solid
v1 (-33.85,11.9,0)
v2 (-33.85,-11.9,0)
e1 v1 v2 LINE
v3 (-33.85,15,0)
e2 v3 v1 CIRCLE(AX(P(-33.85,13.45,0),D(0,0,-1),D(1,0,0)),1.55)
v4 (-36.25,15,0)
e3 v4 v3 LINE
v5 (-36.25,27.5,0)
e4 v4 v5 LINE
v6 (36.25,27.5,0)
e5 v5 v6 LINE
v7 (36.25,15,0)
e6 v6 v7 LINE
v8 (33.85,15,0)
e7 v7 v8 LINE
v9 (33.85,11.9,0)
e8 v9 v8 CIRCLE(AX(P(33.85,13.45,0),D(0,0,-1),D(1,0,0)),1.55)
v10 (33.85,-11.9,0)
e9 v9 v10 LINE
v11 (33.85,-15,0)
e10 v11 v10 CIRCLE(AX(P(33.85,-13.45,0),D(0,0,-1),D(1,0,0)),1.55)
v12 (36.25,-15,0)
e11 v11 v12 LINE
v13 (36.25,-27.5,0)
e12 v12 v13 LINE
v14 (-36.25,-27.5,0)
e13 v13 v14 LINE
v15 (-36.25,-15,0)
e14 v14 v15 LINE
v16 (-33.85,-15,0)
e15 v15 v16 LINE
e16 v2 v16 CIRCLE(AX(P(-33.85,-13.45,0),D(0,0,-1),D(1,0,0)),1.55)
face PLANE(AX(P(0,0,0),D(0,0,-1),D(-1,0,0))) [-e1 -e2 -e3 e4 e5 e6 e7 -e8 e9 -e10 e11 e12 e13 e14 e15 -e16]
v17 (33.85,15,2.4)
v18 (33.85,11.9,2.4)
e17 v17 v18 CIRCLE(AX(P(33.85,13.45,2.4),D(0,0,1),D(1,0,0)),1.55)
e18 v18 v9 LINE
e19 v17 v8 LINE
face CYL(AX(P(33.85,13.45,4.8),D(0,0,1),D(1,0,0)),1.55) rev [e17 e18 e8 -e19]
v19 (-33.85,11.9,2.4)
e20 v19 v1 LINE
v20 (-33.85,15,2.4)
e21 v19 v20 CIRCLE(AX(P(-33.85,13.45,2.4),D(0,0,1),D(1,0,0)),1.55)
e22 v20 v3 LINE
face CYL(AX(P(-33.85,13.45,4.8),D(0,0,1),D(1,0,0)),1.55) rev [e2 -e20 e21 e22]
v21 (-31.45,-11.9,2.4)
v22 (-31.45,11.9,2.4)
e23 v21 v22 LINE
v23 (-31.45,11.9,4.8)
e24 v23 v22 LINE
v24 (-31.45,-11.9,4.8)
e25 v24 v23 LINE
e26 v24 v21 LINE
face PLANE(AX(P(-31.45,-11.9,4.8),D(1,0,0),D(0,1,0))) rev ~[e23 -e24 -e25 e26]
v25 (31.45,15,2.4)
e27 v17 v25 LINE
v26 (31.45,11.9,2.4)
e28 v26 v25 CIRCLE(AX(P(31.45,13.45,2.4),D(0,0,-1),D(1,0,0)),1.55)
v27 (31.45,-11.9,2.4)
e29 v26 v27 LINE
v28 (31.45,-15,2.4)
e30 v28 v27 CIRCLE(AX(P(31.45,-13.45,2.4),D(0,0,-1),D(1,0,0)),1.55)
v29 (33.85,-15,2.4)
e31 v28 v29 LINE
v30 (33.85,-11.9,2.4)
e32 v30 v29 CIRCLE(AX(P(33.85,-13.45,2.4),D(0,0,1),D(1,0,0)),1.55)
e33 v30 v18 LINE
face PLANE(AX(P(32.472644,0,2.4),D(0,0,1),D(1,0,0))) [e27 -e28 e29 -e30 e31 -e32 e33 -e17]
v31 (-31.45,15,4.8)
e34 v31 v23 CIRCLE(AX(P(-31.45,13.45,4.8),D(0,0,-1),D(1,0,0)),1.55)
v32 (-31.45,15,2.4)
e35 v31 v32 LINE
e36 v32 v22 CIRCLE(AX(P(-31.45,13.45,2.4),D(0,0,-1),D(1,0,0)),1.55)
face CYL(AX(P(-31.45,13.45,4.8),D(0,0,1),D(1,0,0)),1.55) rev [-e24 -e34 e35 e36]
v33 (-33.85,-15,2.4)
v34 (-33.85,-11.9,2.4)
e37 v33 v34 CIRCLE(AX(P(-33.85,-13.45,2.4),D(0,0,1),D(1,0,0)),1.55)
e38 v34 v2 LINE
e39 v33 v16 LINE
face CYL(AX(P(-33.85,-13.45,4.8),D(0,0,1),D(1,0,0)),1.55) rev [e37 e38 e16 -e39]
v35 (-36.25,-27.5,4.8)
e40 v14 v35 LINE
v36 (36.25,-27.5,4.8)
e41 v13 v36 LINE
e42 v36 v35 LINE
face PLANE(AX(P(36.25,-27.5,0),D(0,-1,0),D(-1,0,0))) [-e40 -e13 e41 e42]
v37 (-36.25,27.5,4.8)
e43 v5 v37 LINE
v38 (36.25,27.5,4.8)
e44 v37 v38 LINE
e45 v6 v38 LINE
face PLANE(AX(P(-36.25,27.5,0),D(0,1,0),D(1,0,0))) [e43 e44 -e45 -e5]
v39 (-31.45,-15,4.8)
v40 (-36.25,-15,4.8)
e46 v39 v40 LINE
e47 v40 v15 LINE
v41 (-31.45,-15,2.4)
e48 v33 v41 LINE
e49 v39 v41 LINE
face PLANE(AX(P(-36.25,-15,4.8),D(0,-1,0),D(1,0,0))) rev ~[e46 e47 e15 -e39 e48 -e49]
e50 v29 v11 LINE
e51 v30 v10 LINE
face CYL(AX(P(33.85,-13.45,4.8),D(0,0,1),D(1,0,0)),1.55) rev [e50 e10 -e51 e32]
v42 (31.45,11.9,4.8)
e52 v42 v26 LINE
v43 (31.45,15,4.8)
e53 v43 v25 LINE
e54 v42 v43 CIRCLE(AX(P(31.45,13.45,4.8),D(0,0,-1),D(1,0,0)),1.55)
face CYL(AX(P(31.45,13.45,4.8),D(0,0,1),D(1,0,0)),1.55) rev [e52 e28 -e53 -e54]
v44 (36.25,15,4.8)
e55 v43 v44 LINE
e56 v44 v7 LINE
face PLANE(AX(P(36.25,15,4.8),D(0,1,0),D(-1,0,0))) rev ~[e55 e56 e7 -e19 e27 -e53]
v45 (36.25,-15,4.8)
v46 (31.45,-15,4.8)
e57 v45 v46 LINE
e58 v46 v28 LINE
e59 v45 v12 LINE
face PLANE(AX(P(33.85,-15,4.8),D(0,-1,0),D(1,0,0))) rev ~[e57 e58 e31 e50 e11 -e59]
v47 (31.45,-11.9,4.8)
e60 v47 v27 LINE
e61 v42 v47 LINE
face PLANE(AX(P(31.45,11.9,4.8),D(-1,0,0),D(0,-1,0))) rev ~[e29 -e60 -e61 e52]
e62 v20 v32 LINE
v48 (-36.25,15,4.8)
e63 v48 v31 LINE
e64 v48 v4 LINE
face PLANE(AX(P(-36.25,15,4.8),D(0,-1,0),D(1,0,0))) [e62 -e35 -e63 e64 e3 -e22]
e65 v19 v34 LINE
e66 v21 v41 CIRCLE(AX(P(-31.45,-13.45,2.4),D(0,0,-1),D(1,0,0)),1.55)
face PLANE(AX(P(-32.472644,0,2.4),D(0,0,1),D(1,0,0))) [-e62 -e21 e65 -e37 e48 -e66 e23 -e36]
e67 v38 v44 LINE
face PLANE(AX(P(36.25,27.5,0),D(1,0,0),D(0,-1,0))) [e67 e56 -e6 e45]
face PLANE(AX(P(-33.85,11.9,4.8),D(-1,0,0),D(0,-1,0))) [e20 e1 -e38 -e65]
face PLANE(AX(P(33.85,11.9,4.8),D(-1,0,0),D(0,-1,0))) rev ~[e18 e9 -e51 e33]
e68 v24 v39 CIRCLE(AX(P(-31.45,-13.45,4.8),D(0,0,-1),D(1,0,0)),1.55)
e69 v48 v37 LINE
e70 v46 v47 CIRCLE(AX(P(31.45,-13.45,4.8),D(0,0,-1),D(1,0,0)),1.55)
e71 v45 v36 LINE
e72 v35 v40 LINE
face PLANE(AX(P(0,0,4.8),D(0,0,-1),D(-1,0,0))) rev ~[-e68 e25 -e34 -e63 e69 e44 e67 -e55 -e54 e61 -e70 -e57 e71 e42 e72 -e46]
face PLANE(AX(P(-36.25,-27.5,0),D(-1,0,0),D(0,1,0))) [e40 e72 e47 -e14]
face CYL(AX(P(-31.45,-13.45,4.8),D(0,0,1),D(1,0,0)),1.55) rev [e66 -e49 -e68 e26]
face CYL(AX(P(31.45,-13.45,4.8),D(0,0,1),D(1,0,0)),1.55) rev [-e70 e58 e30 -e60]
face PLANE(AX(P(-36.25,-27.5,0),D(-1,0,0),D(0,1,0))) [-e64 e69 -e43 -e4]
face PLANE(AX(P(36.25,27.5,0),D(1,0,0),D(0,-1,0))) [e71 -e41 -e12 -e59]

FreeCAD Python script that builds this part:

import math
import FreeCAD as App
import Part
import Sketcher

V = App.Vector


def add_polygon(sketch, points):
    """Adds a closed chain of lines whose ends are joined by coincident constraints."""
    first, n = sketch.GeometryCount, len(points)
    for a, b in zip(points, points[1:] + points[:1]):
        sketch.addGeometry(Part.LineSegment(App.Vector(*a, 0), App.Vector(*b, 0)), False)
    for i in range(n):
        sketch.addConstraint(Sketcher.Constraint("Coincident", first + i, 2, first + (i + 1) % n, 1))

doc = App.newDocument("Part")
body = doc.addObject("PartDesign::Body", "Body")

# Sketch on XY plane
sketch1 = doc.addObject("Sketcher::SketchObject", "Sketch")
body.addObject(sketch1)
sketch1.AttachmentSupport = (doc.XY_Plane, [""])
sketch1.MapMode = "FlatFace"
add_polygon(sketch1, [(36, 28), (-36, 28), (-36, -28), (36, -28)])  # lines 0-3
sketch1.addConstraint([
    Sketcher.Constraint("Horizontal", 0),
    Sketcher.Constraint("Vertical", 1),
    Sketcher.Constraint("Horizontal", 2),
    Sketcher.Constraint("Vertical", 3),
    Sketcher.Constraint("Symmetric", 0, 2, 2, 2, -1, 1),
    Sketcher.Constraint("DistanceY", 1, 2, 1, 1, 55.0),
    Sketcher.Constraint("DistanceX", 0, 2, 0, 1, 72.5),
])
pad1 = doc.addObject("PartDesign::Pad", "Pad")
body.addObject(pad1)
pad1.Profile = sketch1
pad1.Length = 4.8

# Sketch on XY plane
sketch2 = doc.addObject("Sketcher::SketchObject", "Sketch001")
body.addObject(sketch2)
sketch2.AttachmentSupport = (doc.XY_Plane, [""])
sketch2.MapMode = "FlatFace"
sketch2.AttachmentOffset = App.Placement(V(0, 0, 4.8), App.Rotation())
sketch2.addGeometry([
    Part.LineSegment(V(-33.9, 15, 0), V(-33.9, -15, 0)),  # 0
    Part.LineSegment(V(-33.9, -15, 0), V(-31.4, -15, 0)),  # 1
    Part.ArcOfCircle(Part.Circle(V(-31.4, -13.4, 0), V(0, 0, 1), 1.5), math.radians(-90), math.radians(90)),  # 2
    Part.LineSegment(V(-31.4, -11.9, 0), V(-31.4, 11.9, 0)),  # 3
    Part.ArcOfCircle(Part.Circle(V(-31.4, 13.4, 0), V(0, 0, 1), 1.6), math.radians(-90), math.radians(90)),  # 4
    Part.LineSegment(V(-31.4, 15, 0), V(-33.9, 15, 0)),  # 5
    Part.ArcOfCircle(Part.Circle(V(31.4, -13.4, 0), V(0, 0, 1), 1.6), math.radians(90), math.radians(270)),  # 6
    Part.LineSegment(V(31.4, -15, 0), V(33.9, -15, 0)),  # 7
    Part.LineSegment(V(33.9, -15, 0), V(33.9, 15, 0)),  # 8
    Part.LineSegment(V(33.9, 15, 0), V(31.4, 15, 0)),  # 9
    Part.ArcOfCircle(Part.Circle(V(31.4, 13.4, 0), V(0, 0, 1), 1.5), math.radians(90), math.radians(270)),  # 10
    Part.LineSegment(V(31.4, 11.9, 0), V(31.4, -11.9, 0)),  # 11
], False)
sketch2.addConstraint([
    Sketcher.Constraint("Coincident", 0, 2, 1, 1),
    Sketcher.Constraint("Tangent", 1, 2, 2, 1),
    Sketcher.Constraint("Coincident", 2, 2, 3, 1),
    Sketcher.Constraint("Coincident", 3, 2, 4, 1),
    Sketcher.Constraint("Tangent", 4, 2, 5, 1),
    Sketcher.Constraint("Coincident", 5, 2, 0, 1),
    Sketcher.Constraint("Tangent", 6, 2, 7, 1),
    Sketcher.Constraint("Coincident", 7, 2, 8, 1),
    Sketcher.Constraint("Coincident", 8, 2, 9, 1),
    Sketcher.Constraint("Tangent", 9, 2, 10, 1),
    Sketcher.Constraint("Coincident", 10, 2, 11, 1),
    Sketcher.Constraint("Coincident", 11, 2, 6, 1),
    Sketcher.Constraint("Vertical", 0),
    Sketcher.Constraint("Horizontal", 1),
    Sketcher.Constraint("Vertical", 3),
    Sketcher.Constraint("Horizontal", 5),
    Sketcher.Constraint("Horizontal", 7),
    Sketcher.Constraint("Vertical", 8),
    Sketcher.Constraint("Horizontal", 9),
    Sketcher.Constraint("Vertical", 11),
    Sketcher.Constraint("Equal", 2, 4),
    Sketcher.Constraint("Equal", 4, 6),
    Sketcher.Constraint("Equal", 6, 10),
    Sketcher.Constraint("Symmetric", 4, 3, 6, 3, -1, 1),
    Sketcher.Constraint("Symmetric", 2, 3, 10, 3, -1, 1),
    Sketcher.Constraint("Symmetric", 2, 3, 6, 3, -2),
    Sketcher.Constraint("Vertical", 1, 2, 2, 2),
    Sketcher.Constraint("Vertical", 9, 2, 10, 2),
    Sketcher.Constraint("Equal", 5, 7),
    Sketcher.Constraint("DistanceY", 0, 2, 0, 1, 30.0),
    Sketcher.Constraint("Radius", 2, 1.55),
    Sketcher.Constraint("DistanceX", 1, 1, 1, 2, 2.4),
    Sketcher.Constraint("DistanceX", 2, 3, 6, 3, 62.9),
])
pocket1 = doc.addObject("PartDesign::Pocket", "Pocket")
body.addObject(pocket1)
pocket1.Profile = sketch2
pocket1.Length = 2.4

# Sketch on XY plane
sketch3 = doc.addObject("Sketcher::SketchObject", "Sketch002")
body.addObject(sketch3)
sketch3.AttachmentSupport = (doc.XY_Plane, [""])
sketch3.MapMode = "FlatFace"
sketch3.AttachmentOffset = App.Placement(V(0, 0, 4.8), App.Rotation())
sketch3.addGeometry([
    Part.LineSegment(V(-33.9, -11.9, 0), V(-33.9, 11.9, 0)),  # 0
    Part.ArcOfCircle(Part.Circle(V(-33.9, 13.4, 0), V(0, 0, 1), 1.6), math.radians(-90), math.radians(90)),  # 1
    Part.LineSegment(V(-33.9, 15, 0), V(-36.2, 15, 0)),  # 2
    Part.LineSegment(V(-36.2, 15, 0), V(-36.2, -15, 0)),  # 3
    Part.LineSegment(V(-36.2, -15, 0), V(-33.9, -15, 0)),  # 4
    Part.ArcOfCircle(Part.Circle(V(-33.9, -13.4, 0), V(0, 0, 1), 1.5), math.radians(-90), math.radians(90)),  # 5
    Part.LineSegment(V(36.2, -15, 0), V(36.2, 15, 0)),  # 6
    Part.LineSegment(V(36.2, 15, 0), V(33.9, 15, 0)),  # 7
    Part.ArcOfCircle(Part.Circle(V(33.9, 13.4, 0), V(0, 0, 1), 1.5), math.radians(90), math.radians(270)),  # 8
    Part.LineSegment(V(33.9, 11.9, 0), V(33.9, -11.9, 0)),  # 9
    Part.ArcOfCircle(Part.Circle(V(33.9, -13.4, 0), V(0, 0, 1), 1.6), math.radians(90), math.radians(270)),  # 10
    Part.LineSegment(V(33.9, -15, 0), V(36.2, -15, 0)),  # 11
], False)
sketch3.addConstraint([
    Sketcher.Constraint("Coincident", 0, 2, 1, 1),
    Sketcher.Constraint("Tangent", 1, 2, 2, 1),
    Sketcher.Constraint("Coincident", 2, 2, 3, 1),
    Sketcher.Constraint("Coincident", 3, 2, 4, 1),
    Sketcher.Constraint("Tangent", 4, 2, 5, 1),
    Sketcher.Constraint("Coincident", 5, 2, 0, 1),
    Sketcher.Constraint("Coincident", 6, 2, 7, 1),
    Sketcher.Constraint("Tangent", 7, 2, 8, 1),
    Sketcher.Constraint("Coincident", 8, 2, 9, 1),
    Sketcher.Constraint("Coincident", 9, 2, 10, 1),
    Sketcher.Constraint("Tangent", 10, 2, 11, 1),
    Sketcher.Constraint("Coincident", 11, 2, 6, 1),
    Sketcher.Constraint("Vertical", 0),
    Sketcher.Constraint("Horizontal", 2),
    Sketcher.Constraint("Vertical", 3),
    Sketcher.Constraint("Horizontal", 4),
    Sketcher.Constraint("Vertical", 6),
    Sketcher.Constraint("Horizontal", 7),
    Sketcher.Constraint("Vertical", 9),
    Sketcher.Constraint("Horizontal", 11),
    Sketcher.Constraint("Equal", 1, 5),
    Sketcher.Constraint("Equal", 5, 8),
    Sketcher.Constraint("Equal", 8, 10),
    Sketcher.Constraint("Symmetric", 5, 3, 8, 3, -1, 1),
    Sketcher.Constraint("Symmetric", 1, 3, 10, 3, -1, 1),
    Sketcher.Constraint("Symmetric", 1, 3, 8, 3, -2),
    Sketcher.Constraint("Vertical", 5, 3, 0, 2),
    Sketcher.Constraint("Vertical", 7, 2, 8, 2),
    Sketcher.Constraint("Equal", 4, 7),
    Sketcher.Constraint("DistanceY", 3, 2, 3, 1, 30.0),
    Sketcher.Constraint("Radius", 1, 1.55),
    Sketcher.Constraint("DistanceX", 2, 2, 2, 1, 2.4),
    Sketcher.Constraint("DistanceX", 1, 3, 8, 3, 67.7),
])
pocket2 = doc.addObject("PartDesign::Pocket", "Pocket001")
body.addObject(pocket2)
pocket2.Profile = sketch3
pocket2.Length = 4.8

doc.recompute()
